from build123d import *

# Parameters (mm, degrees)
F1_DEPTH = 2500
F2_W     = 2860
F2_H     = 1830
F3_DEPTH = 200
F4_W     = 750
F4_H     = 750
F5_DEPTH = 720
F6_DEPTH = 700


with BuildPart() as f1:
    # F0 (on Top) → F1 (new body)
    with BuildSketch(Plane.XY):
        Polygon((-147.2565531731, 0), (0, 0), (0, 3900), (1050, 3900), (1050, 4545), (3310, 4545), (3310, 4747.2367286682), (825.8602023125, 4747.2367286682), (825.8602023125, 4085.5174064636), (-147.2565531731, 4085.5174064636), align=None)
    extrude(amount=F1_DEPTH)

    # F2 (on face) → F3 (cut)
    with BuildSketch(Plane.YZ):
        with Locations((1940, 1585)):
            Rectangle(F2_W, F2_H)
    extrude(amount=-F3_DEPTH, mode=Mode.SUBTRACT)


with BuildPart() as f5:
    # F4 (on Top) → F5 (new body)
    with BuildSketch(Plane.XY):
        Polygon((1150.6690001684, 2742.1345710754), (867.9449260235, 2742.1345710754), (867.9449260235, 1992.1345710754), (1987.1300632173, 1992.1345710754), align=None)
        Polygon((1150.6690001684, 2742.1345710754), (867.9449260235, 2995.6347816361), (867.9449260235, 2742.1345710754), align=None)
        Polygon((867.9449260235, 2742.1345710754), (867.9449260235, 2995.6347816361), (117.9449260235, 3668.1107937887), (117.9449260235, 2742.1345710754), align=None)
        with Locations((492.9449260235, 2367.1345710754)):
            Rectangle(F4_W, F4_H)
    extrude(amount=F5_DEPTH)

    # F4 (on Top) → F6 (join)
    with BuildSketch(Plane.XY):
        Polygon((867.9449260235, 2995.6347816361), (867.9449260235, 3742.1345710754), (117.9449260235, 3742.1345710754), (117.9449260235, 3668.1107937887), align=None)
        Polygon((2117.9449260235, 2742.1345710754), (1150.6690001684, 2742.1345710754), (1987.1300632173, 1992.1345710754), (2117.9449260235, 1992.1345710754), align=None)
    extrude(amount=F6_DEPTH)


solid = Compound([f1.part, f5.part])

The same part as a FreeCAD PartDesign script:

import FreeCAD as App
import Part
import Sketcher

V = App.Vector
Q = App.Units.Quantity

doc = App.newDocument("Part")
params = doc.addObject("Spreadsheet::Sheet", "Params")
for row, (alias, value) in enumerate([
    ("sketch1_width", "1050 mm"),
    ("sketch1_width2", "2260 mm"),
    ("sketch1_height", "3900 mm"),
    ("sketch1_height2", "645 mm"),
    ("pad1_length", "2500 mm"),
    ("sketch2_width", "2860 mm"),
    ("sketch2_height", "1830 mm"),
    ("pocket1_length", "200 mm"),
    ("pad2_length", "720 mm"),
    ("sketch4_width", "750 mm"),
    ("pad3_length", "700 mm"),
], start=1):
    params.set(f"A{row}", alias)
    params.set(f"B{row}", "=" + value)
    params.setAlias(f"B{row}", alias)

body = doc.addObject("PartDesign::Body", "Body")

# Sketch on XY plane
sketch1 = body.newObject("Sketcher::SketchObject", "Sketch")
sketch1.AttachmentSupport = (doc.getObject("XY_Plane"), [""])
sketch1.MapMode = "FlatFace"
sketch1.addGeometry([
    Part.LineSegment(V(-147, 0, 0), V(0, 0, 0)),  # 0
    Part.LineSegment(V(0, 0, 0), V(0, 3900, 0)),  # 1
    Part.LineSegment(V(0, 3900, 0), V(1050, 3900, 0)),  # 2
    Part.LineSegment(V(1050, 3900, 0), V(1050, 4545, 0)),  # 3
    Part.LineSegment(V(1050, 4545, 0), V(3310, 4545, 0)),  # 4
    Part.LineSegment(V(3310, 4545, 0), V(3310, 4747, 0)),  # 5
    Part.LineSegment(V(3310, 4747, 0), V(826, 4747, 0)),  # 6
    Part.LineSegment(V(826, 4747, 0), V(826, 4086, 0)),  # 7
    Part.LineSegment(V(826, 4086, 0), V(-147, 4086, 0)),  # 8
    Part.LineSegment(V(-147, 4086, 0), V(-147, 0, 0)),  # 9
], False)
sketch1.addConstraint([
    Sketcher.Constraint("Coincident", 0, 2, 1, 1),
    Sketcher.Constraint("Coincident", 1, 2, 2, 1),
    Sketcher.Constraint("Coincident", 2, 2, 3, 1),
    Sketcher.Constraint("Coincident", 3, 2, 4, 1),
    Sketcher.Constraint("Coincident", 4, 2, 5, 1),
    Sketcher.Constraint("Coincident", 5, 2, 6, 1),
    Sketcher.Constraint("Coincident", 6, 2, 7, 1),
    Sketcher.Constraint("Coincident", 7, 2, 8, 1),
    Sketcher.Constraint("Coincident", 8, 2, 9, 1),
    Sketcher.Constraint("Coincident", 9, 2, 0, 1),
    Sketcher.Constraint("Horizontal", 0),
    Sketcher.Constraint("Vertical", 1),
    Sketcher.Constraint("Horizontal", 2),
    Sketcher.Constraint("Vertical", 3),
    Sketcher.Constraint("Horizontal", 4),
    Sketcher.Constraint("Vertical", 5),
    Sketcher.Constraint("Horizontal", 6),
    Sketcher.Constraint("Vertical", 7),
    Sketcher.Constraint("Horizontal", 8),
    Sketcher.Constraint("Vertical", 9),
    Sketcher.Constraint("Coincident", 0, 2, -1, 1),
    Sketcher.Constraint("DistanceX", 2, 1, 2, 2, Q("1050 mm")),
    Sketcher.Constraint("DistanceX", 4, 1, 4, 2, Q("2260 mm")),
    Sketcher.Constraint("DistanceY", 1, 1, 1, 2, Q("3900 mm")),
    Sketcher.Constraint("DistanceY", 3, 1, 3, 2, Q("645 mm")),
    Sketcher.Constraint("DistanceY", 5, 1, 5, 2, Q("202.236729 mm")),
    Sketcher.Constraint("DistanceX", 0, 1, 0, 2, Q("147.256553 mm")),
    Sketcher.Constraint("DistanceX", 6, 2, 6, 1, Q("2484.139798 mm")),
    Sketcher.Constraint("DistanceY", 7, 2, 7, 1, Q("661.719322 mm")),
])
sketch1.setExpression("Constraints[21]", "Params.sketch1_width")
sketch1.setExpression("Constraints[22]", "Params.sketch1_width2")
sketch1.setExpression("Constraints[23]", "Params.sketch1_height")
sketch1.setExpression("Constraints[24]", "Params.sketch1_height2")
pad1 = body.newObject("PartDesign::Pad", "Pad")
pad1.Profile = sketch1
pad1.setExpression("Length", "Params.pad1_length")

# Sketch on YZ plane
sketch2 = body.newObject("Sketcher::SketchObject", "Sketch001")
sketch2.AttachmentSupport = (doc.getObject("YZ_Plane"), [""])
sketch2.MapMode = "FlatFace"
sketch2.addGeometry([
    Part.LineSegment(V(510, 2500, 0), V(510, 670, 0)),
    Part.LineSegment(V(510, 670, 0), V(3370, 670, 0)),
    Part.LineSegment(V(3370, 670, 0), V(3370, 2500, 0)),
    Part.LineSegment(V(3370, 2500, 0), V(510, 2500, 0)),
], False)
sketch2.addConstraint([
    Sketcher.Constraint("Coincident", 0, 2, 1, 1),
    Sketcher.Constraint("Coincident", 1, 2, 2, 1),
    Sketcher.Constraint("Coincident", 2, 2, 3, 1),
    Sketcher.Constraint("Coincident", 3, 2, 0, 1),
    Sketcher.Constraint("Vertical", 0),
    Sketcher.Constraint("Horizontal", 1),
    Sketcher.Constraint("Vertical", 2),
    Sketcher.Constraint("Horizontal", 3),
    Sketcher.Constraint("DistanceX", 1, 1, 1, 2, Q("2860 mm")),
    Sketcher.Constraint("DistanceY", 0, 2, 0, 1, Q("1830 mm")),
    Sketcher.Constraint("DistanceX", -1, 1, 0, 2, Q("510 mm")),
    Sketcher.Constraint("DistanceY", -1, 1, 0, 2, Q("670 mm")),
])
sketch2.setExpression("Constraints[8]", "Params.sketch2_width")
sketch2.setExpression("Constraints[9]", "Params.sketch2_height")
pocket1 = body.newObject("PartDesign::Pocket", "Pocket")
pocket1.Profile = sketch2
pocket1.setExpression("Length", "Params.pocket1_length")
body2 = doc.addObject("PartDesign::Body", "Body001")

# Sketch on XY plane
sketch3 = body2.newObject("Sketcher::SketchObject", "Sketch002")
sketch3.AttachmentSupport = (doc.getObject("XY_Plane001"), [""])
sketch3.MapMode = "FlatFace"
sketch3.addGeometry([
    Part.LineSegment(V(1987, 1992, 0), V(118, 3668, 0)),
    Part.LineSegment(V(118, 3668, 0), V(118, 1992, 0)),
    Part.LineSegment(V(118, 1992, 0), V(1987, 1992, 0)),
], False)
sketch3.addConstraint([
    Sketcher.Constraint("Coincident", 0, 2, 1, 1),
    Sketcher.Constraint("Coincident", 1, 2, 2, 1),
    Sketcher.Constraint("Coincident", 2, 2, 0, 1),
    Sketcher.Constraint("Vertical", 1),
    Sketcher.Constraint("Horizontal", 2),
    Sketcher.Constraint("Distance", 0, Q("2510.527709 mm")),
    Sketcher.Constraint("DistanceX", 2, 1, 2, 2, Q("1869.185137 mm")),
    Sketcher.Constraint("DistanceY", -1, 1, 1, 2, Q("1992.134571 mm")),
    Sketcher.Constraint("DistanceX", -1, 1, 0, 2, Q("117.944926 mm")),
])
pad2 = body2.newObject("PartDesign::Pad", "Pad001")
pad2.Profile = sketch3
pad2.setExpression("Length", "Params.pad2_length")

# Sketch on XY plane
sketch4 = body2.newObject("Sketcher::SketchObject", "Sketch003")
sketch4.AttachmentSupport = (doc.getObject("XY_Plane001"), [""])
sketch4.MapMode = "FlatFace"
sketch4.addGeometry([
    Part.LineSegment(V(868, 2996, 0), V(868, 3742, 0)),  # 0
    Part.LineSegment(V(868, 3742, 0), V(118, 3742, 0)),  # 1
    Part.LineSegment(V(118, 3742, 0), V(118, 3668, 0)),  # 2
    Part.LineSegment(V(118, 3668, 0), V(868, 2996, 0)),  # 3
    Part.LineSegment(V(2118, 2742, 0), V(1151, 2742, 0)),  # 4
    Part.LineSegment(V(1151, 2742, 0), V(1987, 1992, 0)),  # 5
    Part.LineSegment(V(1987, 1992, 0), V(2118, 1992, 0)),  # 6
    Part.LineSegment(V(2118, 1992, 0), V(2118, 2742, 0)),  # 7
], False)
sketch4.addConstraint([
    Sketcher.Constraint("Coincident", 0, 2, 1, 1),
    Sketcher.Constraint("Coincident", 1, 2, 2, 1),
    Sketcher.Constraint("Coincident", 2, 2, 3, 1),
    Sketcher.Constraint("Coincident", 3, 2, 0, 1),
    Sketcher.Constraint("Coincident", 4, 2, 5, 1),
    Sketcher.Constraint("Coincident", 5, 2, 6, 1),
    Sketcher.Constraint("Coincident", 6, 2, 7, 1),
    Sketcher.Constraint("Coincident", 7, 2, 4, 1),
    Sketcher.Constraint("Vertical", 0),
    Sketcher.Constraint("Horizontal", 1),
    Sketcher.Constraint("Vertical", 2),
    Sketcher.Constraint("Horizontal", 4),
    Sketcher.Constraint("Horizontal", 6),
    Sketcher.Constraint("Vertical", 7),
    Sketcher.Constraint("Parallel", 3, 5),
    Sketcher.Constraint("Equal", 1, 7),
    Sketcher.Constraint("DistanceX", 1, 2, 1, 1, Q("750 mm")),
    Sketcher.Constraint("DistanceY", 4, 2, 0, 2, Q("1000 mm")),
    Sketcher.Constraint("DistanceX", 3, 2, 6, 2, Q("1250 mm")),
    Sketcher.Constraint("DistanceX", -1, 1, 4, 2, Q("1150.669 mm")),
    Sketcher.Constraint("DistanceY", 0, 1, 0, 2, Q("746.499789 mm")),
    Sketcher.Constraint("Distance", 3, Q("1007.335092 mm")),
    Sketcher.Constraint("DistanceX", 4, 2, 4, 1, Q("967.275926 mm")),
    Sketcher.Constraint("DistanceY", -1, 1, 0, 2, Q("3742.134571 mm")),
])
sketch4.setExpression("Constraints[16]", "Params.sketch4_width")
pad3 = body2.newObject("PartDesign::Pad", "Pad002")
pad3.Profile = sketch4
pad3.setExpression("Length", "Params.pad3_length")

doc.recompute()
